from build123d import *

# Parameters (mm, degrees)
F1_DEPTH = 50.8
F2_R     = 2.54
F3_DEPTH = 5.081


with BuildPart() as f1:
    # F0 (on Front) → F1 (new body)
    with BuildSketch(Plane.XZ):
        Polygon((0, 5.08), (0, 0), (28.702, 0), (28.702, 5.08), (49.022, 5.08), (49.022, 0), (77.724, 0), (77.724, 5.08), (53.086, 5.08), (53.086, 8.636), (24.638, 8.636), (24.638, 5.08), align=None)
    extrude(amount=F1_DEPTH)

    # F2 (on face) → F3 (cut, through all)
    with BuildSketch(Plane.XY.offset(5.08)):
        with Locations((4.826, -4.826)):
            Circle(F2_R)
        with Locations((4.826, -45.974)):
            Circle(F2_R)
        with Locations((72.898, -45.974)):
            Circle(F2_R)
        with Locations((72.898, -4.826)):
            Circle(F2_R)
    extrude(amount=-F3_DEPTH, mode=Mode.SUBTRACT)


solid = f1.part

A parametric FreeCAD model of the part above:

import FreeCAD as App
import Part
import Sketcher
from FreeCAD import Vector
Q = App.Units.Quantity

doc = App.newDocument("Part")
body = doc.addObject("PartDesign::Body", "Body")

sketch1 = body.newObject("Sketcher::SketchObject", "Sketch")
sketch1.AttachmentSupport = (doc.getObject("XZ_Plane"), [""])
sketch1.MapMode = "FlatFace"
sketch1.addGeometry(Part.LineSegment(Vector(0, 5.1, 0), Vector(0, 0, 0)), False)
sketch1.addGeometry(Part.LineSegment(Vector(0, 0, 0), Vector(28.7, 0, 0)), False)
sketch1.addGeometry(Part.LineSegment(Vector(28.7, 0, 0), Vector(28.7, 5.1, 0)), False)
sketch1.addGeometry(Part.LineSegment(Vector(28.7, 5.1, 0), Vector(49, 5.1, 0)), False)
sketch1.addGeometry(Part.LineSegment(Vector(49, 5.1, 0), Vector(49, 0, 0)), False)
sketch1.addGeometry(Part.LineSegment(Vector(49, 0, 0), Vector(77.7, 0, 0)), False)
sketch1.addGeometry(Part.LineSegment(Vector(77.7, 0, 0), Vector(77.7, 5.1, 0)), False)
sketch1.addGeometry(Part.LineSegment(Vector(77.7, 5.1, 0), Vector(53.1, 5.1, 0)), False)
sketch1.addGeometry(Part.LineSegment(Vector(53.1, 5.1, 0), Vector(53.1, 8.6, 0)), False)
sketch1.addGeometry(Part.LineSegment(Vector(53.1, 8.6, 0), Vector(24.6, 8.6, 0)), False)
sketch1.addGeometry(Part.LineSegment(Vector(24.6, 8.6, 0), Vector(24.6, 5.1, 0)), False)
sketch1.addGeometry(Part.LineSegment(Vector(24.6, 5.1, 0), Vector(0, 5.1, 0)), False)
sketch1.addConstraint(Sketcher.Constraint("Coincident", 0, 2, 1, 1))
sketch1.addConstraint(Sketcher.Constraint("Coincident", 1, 2, 2, 1))
sketch1.addConstraint(Sketcher.Constraint("Coincident", 2, 2, 3, 1))
sketch1.addConstraint(Sketcher.Constraint("Coincident", 3, 2, 4, 1))
sketch1.addConstraint(Sketcher.Constraint("Coincident", 4, 2, 5, 1))
sketch1.addConstraint(Sketcher.Constraint("Coincident", 5, 2, 6, 1))
sketch1.addConstraint(Sketcher.Constraint("Coincident", 6, 2, 7, 1))
sketch1.addConstraint(Sketcher.Constraint("Coincident", 7, 2, 8, 1))
sketch1.addConstraint(Sketcher.Constraint("Coincident", 8, 2, 9, 1))
sketch1.addConstraint(Sketcher.Constraint("Coincident", 9, 2, 10, 1))
sketch1.addConstraint(Sketcher.Constraint("Coincident", 10, 2, 11, 1))
sketch1.addConstraint(Sketcher.Constraint("Coincident", 11, 2, 0, 1))
sketch1.addConstraint(Sketcher.Constraint("Vertical", 0))
sketch1.addConstraint(Sketcher.Constraint("Horizontal", 1))
sketch1.addConstraint(Sketcher.Constraint("Vertical", 2))
sketch1.addConstraint(Sketcher.Constraint("Horizontal", 3))
sketch1.addConstraint(Sketcher.Constraint("Vertical", 4))
sketch1.addConstraint(Sketcher.Constraint("Horizontal", 5))
sketch1.addConstraint(Sketcher.Constraint("Vertical", 6))
sketch1.addConstraint(Sketcher.Constraint("Horizontal", 7))
sketch1.addConstraint(Sketcher.Constraint("Vertical", 8))
sketch1.addConstraint(Sketcher.Constraint("Horizontal", 9))
sketch1.addConstraint(Sketcher.Constraint("Vertical", 10))
sketch1.addConstraint(Sketcher.Constraint("Horizontal", 11))
sketch1.addConstraint(Sketcher.Constraint("Coincident", 0, 2, -1, 1))
sketch1.addConstraint(Sketcher.Constraint("PointOnObject", 4, 2, -1))
sketch1.addConstraint(Sketcher.Constraint("Horizontal", 3, 2, 6, 2))
sketch1.addConstraint(Sketcher.Constraint("Horizontal", 7, 2, 10, 2))
sketch1.addConstraint(Sketcher.Constraint("Equal", 1, 5))
sketch1.addConstraint(Sketcher.Constraint("Equal", 7, 11))
sketch1.addConstraint(Sketcher.Constraint("DistanceX", 3, 1, 3, 2, Q("0.8 in")))
sketch1.addConstraint(Sketcher.Constraint("DistanceY", 0, 2, 0, 1, Q("0.2 in")))
sketch1.addConstraint(Sketcher.Constraint("DistanceX", 1, 1, 1, 2, Q("1.13 in")))
sketch1.addConstraint(Sketcher.Constraint("DistanceX", 7, 2, 7, 1, Q("0.97 in")))
sketch1.addConstraint(Sketcher.Constraint("DistanceY", 8, 1, 8, 2, Q("0.14 in")))
pad1 = body.newObject("PartDesign::Pad", "Pad")
pad1.Profile = sketch1
pad1.Length = Q("2 in")

sketch2 = body.newObject("Sketcher::SketchObject", "Sketch001")
sketch2.AttachmentSupport = (doc.getObject("XY_Plane"), [""])
sketch2.MapMode = "FlatFace"
sketch2.AttachmentOffset = App.Placement(Vector(0, 0, 0.2 * 25.4), App.Rotation())
sketch2.addGeometry(Part.Circle(Vector(4.8, -4.8, 0), Vector(0, 0, 1), 2.5), False)
sketch2.addGeometry(Part.Circle(Vector(4.8, -46, 0), Vector(0, 0, 1), 2.5), False)
sketch2.addGeometry(Part.Circle(Vector(72.9, -46, 0), Vector(0, 0, 1), 2.5), False)
sketch2.addGeometry(Part.Circle(Vector(72.9, -4.8, 0), Vector(0, 0, 1), 2.5), False)
sketch2.addConstraint(Sketcher.Constraint("Equal", 0, 1))
sketch2.addConstraint(Sketcher.Constraint("Equal", 1, 2))
sketch2.addConstraint(Sketcher.Constraint("Equal", 2, 3))
sketch2.addConstraint(Sketcher.Constraint("Horizontal", 1, 3, 2, 3))
sketch2.addConstraint(Sketcher.Constraint("Horizontal", 0, 3, 3, 3))
sketch2.addConstraint(Sketcher.Constraint("Vertical", 0, 3, 1, 3))
sketch2.addConstraint(Sketcher.Constraint("Vertical", 2, 3, 3, 3))
sketch2.addConstraint(Sketcher.Constraint("Diameter", 0, Q("0.2 in")))
sketch2.addConstraint(Sketcher.Constraint("DistanceX", -1, 1, 0, 3, Q("0.19 in")))
sketch2.addConstraint(Sketcher.Constraint("DistanceY", 0, 3, -1, 1, Q("0.19 in")))
sketch2.addConstraint(Sketcher.Constraint("DistanceY", 1, 3, -1, 1, Q("1.81 in")))
sketch2.addConstraint(Sketcher.Constraint("DistanceX", -1, 1, 2, 3, Q("2.87 in")))
pocket1 = body.newObject("PartDesign::Pocket", "Pocket")
pocket1.Profile = sketch2
pocket1.Type = "ThroughAll"

doc.recompute()
